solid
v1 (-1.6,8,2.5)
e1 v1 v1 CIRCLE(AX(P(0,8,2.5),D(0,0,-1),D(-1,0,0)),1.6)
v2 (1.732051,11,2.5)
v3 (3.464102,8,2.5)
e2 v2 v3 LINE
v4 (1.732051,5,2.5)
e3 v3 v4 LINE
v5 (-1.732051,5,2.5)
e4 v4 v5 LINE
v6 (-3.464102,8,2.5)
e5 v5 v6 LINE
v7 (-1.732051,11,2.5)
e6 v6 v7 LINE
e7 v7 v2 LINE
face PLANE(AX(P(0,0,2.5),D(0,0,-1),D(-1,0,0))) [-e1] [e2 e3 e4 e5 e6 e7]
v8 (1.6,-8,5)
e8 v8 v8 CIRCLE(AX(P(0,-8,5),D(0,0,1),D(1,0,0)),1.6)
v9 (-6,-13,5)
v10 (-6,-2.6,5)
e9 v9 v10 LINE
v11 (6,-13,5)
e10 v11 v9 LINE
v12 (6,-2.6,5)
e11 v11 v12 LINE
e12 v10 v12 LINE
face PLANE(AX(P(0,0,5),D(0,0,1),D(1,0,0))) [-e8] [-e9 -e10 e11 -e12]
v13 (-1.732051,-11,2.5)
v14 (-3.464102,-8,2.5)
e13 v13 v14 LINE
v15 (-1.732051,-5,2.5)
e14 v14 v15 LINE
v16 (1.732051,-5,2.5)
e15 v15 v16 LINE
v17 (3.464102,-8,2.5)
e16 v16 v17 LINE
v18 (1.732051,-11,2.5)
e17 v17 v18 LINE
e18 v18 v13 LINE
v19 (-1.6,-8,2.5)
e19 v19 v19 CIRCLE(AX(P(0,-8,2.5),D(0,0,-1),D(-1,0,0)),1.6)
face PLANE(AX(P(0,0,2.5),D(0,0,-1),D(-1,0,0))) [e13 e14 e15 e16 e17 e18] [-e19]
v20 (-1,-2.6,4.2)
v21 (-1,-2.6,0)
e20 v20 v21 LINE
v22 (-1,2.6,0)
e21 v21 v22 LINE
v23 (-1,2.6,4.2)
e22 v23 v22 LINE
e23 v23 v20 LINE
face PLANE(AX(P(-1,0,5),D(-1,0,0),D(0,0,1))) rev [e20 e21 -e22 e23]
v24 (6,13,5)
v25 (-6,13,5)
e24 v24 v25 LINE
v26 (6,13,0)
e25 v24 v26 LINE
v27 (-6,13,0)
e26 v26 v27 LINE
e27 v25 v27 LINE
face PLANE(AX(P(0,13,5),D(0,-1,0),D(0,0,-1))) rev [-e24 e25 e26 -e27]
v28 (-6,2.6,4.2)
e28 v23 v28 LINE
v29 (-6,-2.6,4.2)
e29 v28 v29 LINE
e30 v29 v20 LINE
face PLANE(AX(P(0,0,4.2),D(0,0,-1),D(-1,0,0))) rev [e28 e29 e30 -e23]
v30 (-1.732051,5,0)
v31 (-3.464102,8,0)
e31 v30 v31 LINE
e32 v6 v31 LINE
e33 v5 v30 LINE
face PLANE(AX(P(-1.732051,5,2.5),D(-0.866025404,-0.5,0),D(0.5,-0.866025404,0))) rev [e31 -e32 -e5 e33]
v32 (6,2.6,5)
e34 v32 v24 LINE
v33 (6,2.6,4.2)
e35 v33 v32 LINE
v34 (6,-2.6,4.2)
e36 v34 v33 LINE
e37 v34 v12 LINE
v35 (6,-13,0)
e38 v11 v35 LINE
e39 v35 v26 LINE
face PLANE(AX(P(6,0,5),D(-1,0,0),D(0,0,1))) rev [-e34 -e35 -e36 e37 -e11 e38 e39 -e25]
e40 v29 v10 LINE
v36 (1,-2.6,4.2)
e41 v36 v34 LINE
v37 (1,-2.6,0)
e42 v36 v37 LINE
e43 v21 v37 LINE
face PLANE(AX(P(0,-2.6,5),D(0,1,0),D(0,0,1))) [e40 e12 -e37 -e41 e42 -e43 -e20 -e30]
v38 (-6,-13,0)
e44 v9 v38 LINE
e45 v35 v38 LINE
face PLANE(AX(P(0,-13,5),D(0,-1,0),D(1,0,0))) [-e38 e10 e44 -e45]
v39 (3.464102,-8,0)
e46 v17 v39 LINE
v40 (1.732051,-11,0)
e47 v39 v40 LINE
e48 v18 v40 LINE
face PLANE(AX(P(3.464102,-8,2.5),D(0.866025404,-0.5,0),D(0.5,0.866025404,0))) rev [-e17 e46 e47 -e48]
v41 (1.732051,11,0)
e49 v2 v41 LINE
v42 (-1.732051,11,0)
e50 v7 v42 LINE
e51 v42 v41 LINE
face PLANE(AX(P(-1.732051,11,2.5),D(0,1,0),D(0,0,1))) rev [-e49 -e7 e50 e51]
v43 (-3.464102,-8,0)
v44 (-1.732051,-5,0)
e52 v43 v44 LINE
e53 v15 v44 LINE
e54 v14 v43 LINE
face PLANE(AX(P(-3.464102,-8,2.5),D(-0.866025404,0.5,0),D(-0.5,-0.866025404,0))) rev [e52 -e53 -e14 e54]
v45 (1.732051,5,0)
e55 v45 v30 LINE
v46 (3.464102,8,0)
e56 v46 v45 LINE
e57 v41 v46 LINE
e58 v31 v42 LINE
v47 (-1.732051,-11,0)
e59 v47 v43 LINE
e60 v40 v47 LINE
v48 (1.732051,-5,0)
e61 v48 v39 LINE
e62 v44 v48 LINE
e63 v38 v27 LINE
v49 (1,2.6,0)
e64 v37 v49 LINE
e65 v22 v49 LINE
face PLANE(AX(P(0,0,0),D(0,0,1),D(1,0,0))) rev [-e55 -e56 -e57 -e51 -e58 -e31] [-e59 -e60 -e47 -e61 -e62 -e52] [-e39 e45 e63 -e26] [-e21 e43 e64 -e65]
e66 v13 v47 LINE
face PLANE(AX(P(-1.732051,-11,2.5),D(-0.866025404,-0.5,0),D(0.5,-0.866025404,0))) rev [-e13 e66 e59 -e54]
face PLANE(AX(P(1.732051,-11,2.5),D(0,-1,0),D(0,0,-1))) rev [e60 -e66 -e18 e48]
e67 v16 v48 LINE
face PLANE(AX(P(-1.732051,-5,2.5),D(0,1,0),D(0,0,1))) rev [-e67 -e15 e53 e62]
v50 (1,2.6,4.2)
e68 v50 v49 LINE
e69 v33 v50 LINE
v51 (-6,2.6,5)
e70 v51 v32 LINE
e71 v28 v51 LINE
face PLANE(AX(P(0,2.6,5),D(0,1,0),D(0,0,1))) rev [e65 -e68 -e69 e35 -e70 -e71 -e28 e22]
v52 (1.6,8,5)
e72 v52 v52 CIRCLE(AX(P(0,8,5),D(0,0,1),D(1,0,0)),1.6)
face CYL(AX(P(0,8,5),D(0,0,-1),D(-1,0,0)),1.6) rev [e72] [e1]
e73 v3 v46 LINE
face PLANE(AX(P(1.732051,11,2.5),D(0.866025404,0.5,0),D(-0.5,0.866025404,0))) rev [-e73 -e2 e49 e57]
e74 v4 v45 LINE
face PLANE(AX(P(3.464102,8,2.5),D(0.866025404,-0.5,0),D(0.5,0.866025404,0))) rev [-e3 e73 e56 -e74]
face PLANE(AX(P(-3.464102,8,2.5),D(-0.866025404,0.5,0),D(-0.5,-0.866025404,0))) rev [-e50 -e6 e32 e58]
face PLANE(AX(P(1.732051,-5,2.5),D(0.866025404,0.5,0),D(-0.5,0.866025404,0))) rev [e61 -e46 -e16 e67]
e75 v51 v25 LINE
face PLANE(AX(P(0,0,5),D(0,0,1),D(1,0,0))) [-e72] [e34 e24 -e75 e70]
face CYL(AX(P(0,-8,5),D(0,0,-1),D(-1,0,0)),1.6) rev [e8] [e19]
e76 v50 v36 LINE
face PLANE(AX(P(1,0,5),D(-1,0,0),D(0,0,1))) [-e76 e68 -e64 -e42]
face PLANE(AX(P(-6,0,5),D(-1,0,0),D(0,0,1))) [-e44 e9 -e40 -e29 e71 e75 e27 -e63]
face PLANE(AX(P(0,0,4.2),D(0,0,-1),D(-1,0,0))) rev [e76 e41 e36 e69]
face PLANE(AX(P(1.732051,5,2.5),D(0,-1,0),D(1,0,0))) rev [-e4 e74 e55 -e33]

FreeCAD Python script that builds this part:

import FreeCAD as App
import Part
import Sketcher

V = App.Vector
Q = App.Units.Quantity


def add_polygon(sketch, points):
    """Adds a closed chain of lines whose ends are joined by coincident constraints."""
    first, n = sketch.GeometryCount, len(points)
    for a, b in zip(points, points[1:] + points[:1]):
        sketch.addGeometry(Part.LineSegment(App.Vector(*a, 0), App.Vector(*b, 0)), False)
    for i in range(n):
        sketch.addConstraint(Sketcher.Constraint("Coincident", first + i, 2, first + (i + 1) % n, 1))

doc = App.newDocument("Part")
body = doc.addObject("PartDesign::Body", "Body")

sketch1 = doc.addObject("Sketcher::SketchObject", "Sketch")
body.addObject(sketch1)
sketch1.AttachmentSupport = (doc.XY_Plane, [""])
sketch1.MapMode = "FlatFace"
add_polygon(sketch1, [(-6, 13), (-6, -13), (6, -13), (6, 13)])
sketch1.addGeometry(Part.Circle(V(0, -8, 0), V(0, 0, 1), 1.6), False)
add_polygon(sketch1, [(1, -2.6), (-1, -2.6), (-1, 2.6), (1, 2.6)])
sketch1.addGeometry(Part.Circle(V(0, 8, 0), V(0, 0, 1), 1.6), False)
sketch1.addConstraint(Sketcher.Constraint("Vertical", 0))
sketch1.addConstraint(Sketcher.Constraint("Horizontal", 1))
sketch1.addConstraint(Sketcher.Constraint("Vertical", 2))
sketch1.addConstraint(Sketcher.Constraint("Horizontal", 3))
sketch1.addConstraint(Sketcher.Constraint("Horizontal", 5))
sketch1.addConstraint(Sketcher.Constraint("Vertical", 6))
sketch1.addConstraint(Sketcher.Constraint("Horizontal", 7))
sketch1.addConstraint(Sketcher.Constraint("Vertical", 8))
sketch1.addConstraint(Sketcher.Constraint("Equal", 4, 9))
sketch1.addConstraint(Sketcher.Constraint("Symmetric", 4, 3, 9, 3, -1, 1))
sketch1.addConstraint(Sketcher.Constraint("Symmetric", 0, 2, 2, 2, -1, 1))
sketch1.addConstraint(Sketcher.Constraint("Symmetric", 5, 2, 7, 2, -1, 1))
sketch1.addConstraint(Sketcher.Constraint("PointOnObject", 4, 3, -2))
sketch1.addConstraint(Sketcher.Constraint("Diameter", 4, 3.2))
sketch1.addConstraint(Sketcher.Constraint("DistanceX", 1, 1, 1, 2, 12.0))
sketch1.addConstraint(Sketcher.Constraint("DistanceX", 5, 2, 5, 1, 2.0))
sketch1.addConstraint(Sketcher.Constraint("DistanceY", 0, 2, 0, 1, 26.0))
sketch1.addConstraint(Sketcher.Constraint("DistanceY", 6, 1, 6, 2, 5.2))
sketch1.addConstraint(Sketcher.Constraint("DistanceY", 4, 3, -1, 1, 8.0))
pad1 = doc.addObject("PartDesign::Pad", "Pad")
body.addObject(pad1)
pad1.Profile = sketch1
pad1.Length = 5

sketch2 = doc.addObject("Sketcher::SketchObject", "Sketch001")
body.addObject(sketch2)
sketch2.AttachmentSupport = (doc.XY_Plane, [""])
sketch2.MapMode = "FlatFace"
sketch2.AttachmentOffset = App.Placement(V(0, 0, 5), App.Rotation())
add_polygon(sketch2, [(-6, 2.6), (-6, -2.6), (6, -2.6), (6, 2.6)])
sketch2.addConstraint(Sketcher.Constraint("Vertical", 0))
sketch2.addConstraint(Sketcher.Constraint("Horizontal", 1))
sketch2.addConstraint(Sketcher.Constraint("Vertical", 2))
sketch2.addConstraint(Sketcher.Constraint("Horizontal", 3))
sketch2.addConstraint(Sketcher.Constraint("Symmetric", 0, 2, 2, 2, -1, 1))
sketch2.addConstraint(Sketcher.Constraint("DistanceX", 1, 1, 1, 2, 12.0))
sketch2.addConstraint(Sketcher.Constraint("DistanceY", 0, 2, 0, 1, 5.2))
pocket1 = doc.addObject("PartDesign::Pocket", "Pocket")
body.addObject(pocket1)
pocket1.Profile = sketch2
pocket1.Length = 0.8

sketch3 = doc.addObject("Sketcher::SketchObject", "Sketch002")
body.addObject(sketch3)
sketch3.AttachmentSupport = (doc.XY_Plane, [""])
sketch3.MapMode = "FlatFace"
add_polygon(sketch3, [(-1.732051, 11), (1.732051, 11), (3.464102, 8), (1.732051, 5), (-1.732051, 5), (-3.464102, 8)])
add_polygon(sketch3, [(-1.732051, -5), (1.732051, -5), (3.464102, -8), (1.732051, -11), (-1.732051, -11), (-3.464102, -8)])
sketch3.addConstraint(Sketcher.Constraint("Horizontal", 0))
sketch3.addConstraint(Sketcher.Constraint("Horizontal", 3))
sketch3.addConstraint(Sketcher.Constraint("Horizontal", 6))
sketch3.addConstraint(Sketcher.Constraint("Horizontal", 9))
sketch3.addConstraint(Sketcher.Constraint("Symmetric", 3, 2, 6, 2, -1, 1))
sketch3.addConstraint(Sketcher.Constraint("Symmetric", 4, 2, 7, 2, -1, 1))
sketch3.addConstraint(Sketcher.Constraint("Symmetric", 5, 2, 8, 2, -1, 1))
sketch3.addConstraint(Sketcher.Constraint("Symmetric", 1, 2, 10, 2, -1, 1))
sketch3.addConstraint(Sketcher.Constraint("Symmetric", 1, 2, 4, 2, -2))
sketch3.addConstraint(Sketcher.Constraint("Parallel", 1, 4))
sketch3.addConstraint(Sketcher.Constraint("Parallel", 2, 5))
sketch3.addConstraint(Sketcher.Constraint("Parallel", 7, 10))
sketch3.addConstraint(Sketcher.Constraint("Parallel", 8, 11))
sketch3.addConstraint(Sketcher.Constraint("Vertical", 0, 2, 2, 2))
sketch3.addConstraint(Sketcher.Constraint("Vertical", 3, 2, 5, 2))
sketch3.addConstraint(Sketcher.Constraint("Angle", 1, Q("-60 deg")))
sketch3.addConstraint(Sketcher.Constraint("DistanceY", -1, 1, 0, 2, 11.0))
sketch3.addConstraint(Sketcher.Constraint("DistanceY", -1, 1, 1, 2, 8.0))
sketch3.addConstraint(Sketcher.Constraint("DistanceX", 0, 1, 0, 2, 3.464102))
pocket2 = doc.addObject("PartDesign::Pocket", "Pocket001")
body.addObject(pocket2)
pocket2.Profile = sketch3
pocket2.Length = 2.5
pocket2.Reversed = True

doc.recompute()
